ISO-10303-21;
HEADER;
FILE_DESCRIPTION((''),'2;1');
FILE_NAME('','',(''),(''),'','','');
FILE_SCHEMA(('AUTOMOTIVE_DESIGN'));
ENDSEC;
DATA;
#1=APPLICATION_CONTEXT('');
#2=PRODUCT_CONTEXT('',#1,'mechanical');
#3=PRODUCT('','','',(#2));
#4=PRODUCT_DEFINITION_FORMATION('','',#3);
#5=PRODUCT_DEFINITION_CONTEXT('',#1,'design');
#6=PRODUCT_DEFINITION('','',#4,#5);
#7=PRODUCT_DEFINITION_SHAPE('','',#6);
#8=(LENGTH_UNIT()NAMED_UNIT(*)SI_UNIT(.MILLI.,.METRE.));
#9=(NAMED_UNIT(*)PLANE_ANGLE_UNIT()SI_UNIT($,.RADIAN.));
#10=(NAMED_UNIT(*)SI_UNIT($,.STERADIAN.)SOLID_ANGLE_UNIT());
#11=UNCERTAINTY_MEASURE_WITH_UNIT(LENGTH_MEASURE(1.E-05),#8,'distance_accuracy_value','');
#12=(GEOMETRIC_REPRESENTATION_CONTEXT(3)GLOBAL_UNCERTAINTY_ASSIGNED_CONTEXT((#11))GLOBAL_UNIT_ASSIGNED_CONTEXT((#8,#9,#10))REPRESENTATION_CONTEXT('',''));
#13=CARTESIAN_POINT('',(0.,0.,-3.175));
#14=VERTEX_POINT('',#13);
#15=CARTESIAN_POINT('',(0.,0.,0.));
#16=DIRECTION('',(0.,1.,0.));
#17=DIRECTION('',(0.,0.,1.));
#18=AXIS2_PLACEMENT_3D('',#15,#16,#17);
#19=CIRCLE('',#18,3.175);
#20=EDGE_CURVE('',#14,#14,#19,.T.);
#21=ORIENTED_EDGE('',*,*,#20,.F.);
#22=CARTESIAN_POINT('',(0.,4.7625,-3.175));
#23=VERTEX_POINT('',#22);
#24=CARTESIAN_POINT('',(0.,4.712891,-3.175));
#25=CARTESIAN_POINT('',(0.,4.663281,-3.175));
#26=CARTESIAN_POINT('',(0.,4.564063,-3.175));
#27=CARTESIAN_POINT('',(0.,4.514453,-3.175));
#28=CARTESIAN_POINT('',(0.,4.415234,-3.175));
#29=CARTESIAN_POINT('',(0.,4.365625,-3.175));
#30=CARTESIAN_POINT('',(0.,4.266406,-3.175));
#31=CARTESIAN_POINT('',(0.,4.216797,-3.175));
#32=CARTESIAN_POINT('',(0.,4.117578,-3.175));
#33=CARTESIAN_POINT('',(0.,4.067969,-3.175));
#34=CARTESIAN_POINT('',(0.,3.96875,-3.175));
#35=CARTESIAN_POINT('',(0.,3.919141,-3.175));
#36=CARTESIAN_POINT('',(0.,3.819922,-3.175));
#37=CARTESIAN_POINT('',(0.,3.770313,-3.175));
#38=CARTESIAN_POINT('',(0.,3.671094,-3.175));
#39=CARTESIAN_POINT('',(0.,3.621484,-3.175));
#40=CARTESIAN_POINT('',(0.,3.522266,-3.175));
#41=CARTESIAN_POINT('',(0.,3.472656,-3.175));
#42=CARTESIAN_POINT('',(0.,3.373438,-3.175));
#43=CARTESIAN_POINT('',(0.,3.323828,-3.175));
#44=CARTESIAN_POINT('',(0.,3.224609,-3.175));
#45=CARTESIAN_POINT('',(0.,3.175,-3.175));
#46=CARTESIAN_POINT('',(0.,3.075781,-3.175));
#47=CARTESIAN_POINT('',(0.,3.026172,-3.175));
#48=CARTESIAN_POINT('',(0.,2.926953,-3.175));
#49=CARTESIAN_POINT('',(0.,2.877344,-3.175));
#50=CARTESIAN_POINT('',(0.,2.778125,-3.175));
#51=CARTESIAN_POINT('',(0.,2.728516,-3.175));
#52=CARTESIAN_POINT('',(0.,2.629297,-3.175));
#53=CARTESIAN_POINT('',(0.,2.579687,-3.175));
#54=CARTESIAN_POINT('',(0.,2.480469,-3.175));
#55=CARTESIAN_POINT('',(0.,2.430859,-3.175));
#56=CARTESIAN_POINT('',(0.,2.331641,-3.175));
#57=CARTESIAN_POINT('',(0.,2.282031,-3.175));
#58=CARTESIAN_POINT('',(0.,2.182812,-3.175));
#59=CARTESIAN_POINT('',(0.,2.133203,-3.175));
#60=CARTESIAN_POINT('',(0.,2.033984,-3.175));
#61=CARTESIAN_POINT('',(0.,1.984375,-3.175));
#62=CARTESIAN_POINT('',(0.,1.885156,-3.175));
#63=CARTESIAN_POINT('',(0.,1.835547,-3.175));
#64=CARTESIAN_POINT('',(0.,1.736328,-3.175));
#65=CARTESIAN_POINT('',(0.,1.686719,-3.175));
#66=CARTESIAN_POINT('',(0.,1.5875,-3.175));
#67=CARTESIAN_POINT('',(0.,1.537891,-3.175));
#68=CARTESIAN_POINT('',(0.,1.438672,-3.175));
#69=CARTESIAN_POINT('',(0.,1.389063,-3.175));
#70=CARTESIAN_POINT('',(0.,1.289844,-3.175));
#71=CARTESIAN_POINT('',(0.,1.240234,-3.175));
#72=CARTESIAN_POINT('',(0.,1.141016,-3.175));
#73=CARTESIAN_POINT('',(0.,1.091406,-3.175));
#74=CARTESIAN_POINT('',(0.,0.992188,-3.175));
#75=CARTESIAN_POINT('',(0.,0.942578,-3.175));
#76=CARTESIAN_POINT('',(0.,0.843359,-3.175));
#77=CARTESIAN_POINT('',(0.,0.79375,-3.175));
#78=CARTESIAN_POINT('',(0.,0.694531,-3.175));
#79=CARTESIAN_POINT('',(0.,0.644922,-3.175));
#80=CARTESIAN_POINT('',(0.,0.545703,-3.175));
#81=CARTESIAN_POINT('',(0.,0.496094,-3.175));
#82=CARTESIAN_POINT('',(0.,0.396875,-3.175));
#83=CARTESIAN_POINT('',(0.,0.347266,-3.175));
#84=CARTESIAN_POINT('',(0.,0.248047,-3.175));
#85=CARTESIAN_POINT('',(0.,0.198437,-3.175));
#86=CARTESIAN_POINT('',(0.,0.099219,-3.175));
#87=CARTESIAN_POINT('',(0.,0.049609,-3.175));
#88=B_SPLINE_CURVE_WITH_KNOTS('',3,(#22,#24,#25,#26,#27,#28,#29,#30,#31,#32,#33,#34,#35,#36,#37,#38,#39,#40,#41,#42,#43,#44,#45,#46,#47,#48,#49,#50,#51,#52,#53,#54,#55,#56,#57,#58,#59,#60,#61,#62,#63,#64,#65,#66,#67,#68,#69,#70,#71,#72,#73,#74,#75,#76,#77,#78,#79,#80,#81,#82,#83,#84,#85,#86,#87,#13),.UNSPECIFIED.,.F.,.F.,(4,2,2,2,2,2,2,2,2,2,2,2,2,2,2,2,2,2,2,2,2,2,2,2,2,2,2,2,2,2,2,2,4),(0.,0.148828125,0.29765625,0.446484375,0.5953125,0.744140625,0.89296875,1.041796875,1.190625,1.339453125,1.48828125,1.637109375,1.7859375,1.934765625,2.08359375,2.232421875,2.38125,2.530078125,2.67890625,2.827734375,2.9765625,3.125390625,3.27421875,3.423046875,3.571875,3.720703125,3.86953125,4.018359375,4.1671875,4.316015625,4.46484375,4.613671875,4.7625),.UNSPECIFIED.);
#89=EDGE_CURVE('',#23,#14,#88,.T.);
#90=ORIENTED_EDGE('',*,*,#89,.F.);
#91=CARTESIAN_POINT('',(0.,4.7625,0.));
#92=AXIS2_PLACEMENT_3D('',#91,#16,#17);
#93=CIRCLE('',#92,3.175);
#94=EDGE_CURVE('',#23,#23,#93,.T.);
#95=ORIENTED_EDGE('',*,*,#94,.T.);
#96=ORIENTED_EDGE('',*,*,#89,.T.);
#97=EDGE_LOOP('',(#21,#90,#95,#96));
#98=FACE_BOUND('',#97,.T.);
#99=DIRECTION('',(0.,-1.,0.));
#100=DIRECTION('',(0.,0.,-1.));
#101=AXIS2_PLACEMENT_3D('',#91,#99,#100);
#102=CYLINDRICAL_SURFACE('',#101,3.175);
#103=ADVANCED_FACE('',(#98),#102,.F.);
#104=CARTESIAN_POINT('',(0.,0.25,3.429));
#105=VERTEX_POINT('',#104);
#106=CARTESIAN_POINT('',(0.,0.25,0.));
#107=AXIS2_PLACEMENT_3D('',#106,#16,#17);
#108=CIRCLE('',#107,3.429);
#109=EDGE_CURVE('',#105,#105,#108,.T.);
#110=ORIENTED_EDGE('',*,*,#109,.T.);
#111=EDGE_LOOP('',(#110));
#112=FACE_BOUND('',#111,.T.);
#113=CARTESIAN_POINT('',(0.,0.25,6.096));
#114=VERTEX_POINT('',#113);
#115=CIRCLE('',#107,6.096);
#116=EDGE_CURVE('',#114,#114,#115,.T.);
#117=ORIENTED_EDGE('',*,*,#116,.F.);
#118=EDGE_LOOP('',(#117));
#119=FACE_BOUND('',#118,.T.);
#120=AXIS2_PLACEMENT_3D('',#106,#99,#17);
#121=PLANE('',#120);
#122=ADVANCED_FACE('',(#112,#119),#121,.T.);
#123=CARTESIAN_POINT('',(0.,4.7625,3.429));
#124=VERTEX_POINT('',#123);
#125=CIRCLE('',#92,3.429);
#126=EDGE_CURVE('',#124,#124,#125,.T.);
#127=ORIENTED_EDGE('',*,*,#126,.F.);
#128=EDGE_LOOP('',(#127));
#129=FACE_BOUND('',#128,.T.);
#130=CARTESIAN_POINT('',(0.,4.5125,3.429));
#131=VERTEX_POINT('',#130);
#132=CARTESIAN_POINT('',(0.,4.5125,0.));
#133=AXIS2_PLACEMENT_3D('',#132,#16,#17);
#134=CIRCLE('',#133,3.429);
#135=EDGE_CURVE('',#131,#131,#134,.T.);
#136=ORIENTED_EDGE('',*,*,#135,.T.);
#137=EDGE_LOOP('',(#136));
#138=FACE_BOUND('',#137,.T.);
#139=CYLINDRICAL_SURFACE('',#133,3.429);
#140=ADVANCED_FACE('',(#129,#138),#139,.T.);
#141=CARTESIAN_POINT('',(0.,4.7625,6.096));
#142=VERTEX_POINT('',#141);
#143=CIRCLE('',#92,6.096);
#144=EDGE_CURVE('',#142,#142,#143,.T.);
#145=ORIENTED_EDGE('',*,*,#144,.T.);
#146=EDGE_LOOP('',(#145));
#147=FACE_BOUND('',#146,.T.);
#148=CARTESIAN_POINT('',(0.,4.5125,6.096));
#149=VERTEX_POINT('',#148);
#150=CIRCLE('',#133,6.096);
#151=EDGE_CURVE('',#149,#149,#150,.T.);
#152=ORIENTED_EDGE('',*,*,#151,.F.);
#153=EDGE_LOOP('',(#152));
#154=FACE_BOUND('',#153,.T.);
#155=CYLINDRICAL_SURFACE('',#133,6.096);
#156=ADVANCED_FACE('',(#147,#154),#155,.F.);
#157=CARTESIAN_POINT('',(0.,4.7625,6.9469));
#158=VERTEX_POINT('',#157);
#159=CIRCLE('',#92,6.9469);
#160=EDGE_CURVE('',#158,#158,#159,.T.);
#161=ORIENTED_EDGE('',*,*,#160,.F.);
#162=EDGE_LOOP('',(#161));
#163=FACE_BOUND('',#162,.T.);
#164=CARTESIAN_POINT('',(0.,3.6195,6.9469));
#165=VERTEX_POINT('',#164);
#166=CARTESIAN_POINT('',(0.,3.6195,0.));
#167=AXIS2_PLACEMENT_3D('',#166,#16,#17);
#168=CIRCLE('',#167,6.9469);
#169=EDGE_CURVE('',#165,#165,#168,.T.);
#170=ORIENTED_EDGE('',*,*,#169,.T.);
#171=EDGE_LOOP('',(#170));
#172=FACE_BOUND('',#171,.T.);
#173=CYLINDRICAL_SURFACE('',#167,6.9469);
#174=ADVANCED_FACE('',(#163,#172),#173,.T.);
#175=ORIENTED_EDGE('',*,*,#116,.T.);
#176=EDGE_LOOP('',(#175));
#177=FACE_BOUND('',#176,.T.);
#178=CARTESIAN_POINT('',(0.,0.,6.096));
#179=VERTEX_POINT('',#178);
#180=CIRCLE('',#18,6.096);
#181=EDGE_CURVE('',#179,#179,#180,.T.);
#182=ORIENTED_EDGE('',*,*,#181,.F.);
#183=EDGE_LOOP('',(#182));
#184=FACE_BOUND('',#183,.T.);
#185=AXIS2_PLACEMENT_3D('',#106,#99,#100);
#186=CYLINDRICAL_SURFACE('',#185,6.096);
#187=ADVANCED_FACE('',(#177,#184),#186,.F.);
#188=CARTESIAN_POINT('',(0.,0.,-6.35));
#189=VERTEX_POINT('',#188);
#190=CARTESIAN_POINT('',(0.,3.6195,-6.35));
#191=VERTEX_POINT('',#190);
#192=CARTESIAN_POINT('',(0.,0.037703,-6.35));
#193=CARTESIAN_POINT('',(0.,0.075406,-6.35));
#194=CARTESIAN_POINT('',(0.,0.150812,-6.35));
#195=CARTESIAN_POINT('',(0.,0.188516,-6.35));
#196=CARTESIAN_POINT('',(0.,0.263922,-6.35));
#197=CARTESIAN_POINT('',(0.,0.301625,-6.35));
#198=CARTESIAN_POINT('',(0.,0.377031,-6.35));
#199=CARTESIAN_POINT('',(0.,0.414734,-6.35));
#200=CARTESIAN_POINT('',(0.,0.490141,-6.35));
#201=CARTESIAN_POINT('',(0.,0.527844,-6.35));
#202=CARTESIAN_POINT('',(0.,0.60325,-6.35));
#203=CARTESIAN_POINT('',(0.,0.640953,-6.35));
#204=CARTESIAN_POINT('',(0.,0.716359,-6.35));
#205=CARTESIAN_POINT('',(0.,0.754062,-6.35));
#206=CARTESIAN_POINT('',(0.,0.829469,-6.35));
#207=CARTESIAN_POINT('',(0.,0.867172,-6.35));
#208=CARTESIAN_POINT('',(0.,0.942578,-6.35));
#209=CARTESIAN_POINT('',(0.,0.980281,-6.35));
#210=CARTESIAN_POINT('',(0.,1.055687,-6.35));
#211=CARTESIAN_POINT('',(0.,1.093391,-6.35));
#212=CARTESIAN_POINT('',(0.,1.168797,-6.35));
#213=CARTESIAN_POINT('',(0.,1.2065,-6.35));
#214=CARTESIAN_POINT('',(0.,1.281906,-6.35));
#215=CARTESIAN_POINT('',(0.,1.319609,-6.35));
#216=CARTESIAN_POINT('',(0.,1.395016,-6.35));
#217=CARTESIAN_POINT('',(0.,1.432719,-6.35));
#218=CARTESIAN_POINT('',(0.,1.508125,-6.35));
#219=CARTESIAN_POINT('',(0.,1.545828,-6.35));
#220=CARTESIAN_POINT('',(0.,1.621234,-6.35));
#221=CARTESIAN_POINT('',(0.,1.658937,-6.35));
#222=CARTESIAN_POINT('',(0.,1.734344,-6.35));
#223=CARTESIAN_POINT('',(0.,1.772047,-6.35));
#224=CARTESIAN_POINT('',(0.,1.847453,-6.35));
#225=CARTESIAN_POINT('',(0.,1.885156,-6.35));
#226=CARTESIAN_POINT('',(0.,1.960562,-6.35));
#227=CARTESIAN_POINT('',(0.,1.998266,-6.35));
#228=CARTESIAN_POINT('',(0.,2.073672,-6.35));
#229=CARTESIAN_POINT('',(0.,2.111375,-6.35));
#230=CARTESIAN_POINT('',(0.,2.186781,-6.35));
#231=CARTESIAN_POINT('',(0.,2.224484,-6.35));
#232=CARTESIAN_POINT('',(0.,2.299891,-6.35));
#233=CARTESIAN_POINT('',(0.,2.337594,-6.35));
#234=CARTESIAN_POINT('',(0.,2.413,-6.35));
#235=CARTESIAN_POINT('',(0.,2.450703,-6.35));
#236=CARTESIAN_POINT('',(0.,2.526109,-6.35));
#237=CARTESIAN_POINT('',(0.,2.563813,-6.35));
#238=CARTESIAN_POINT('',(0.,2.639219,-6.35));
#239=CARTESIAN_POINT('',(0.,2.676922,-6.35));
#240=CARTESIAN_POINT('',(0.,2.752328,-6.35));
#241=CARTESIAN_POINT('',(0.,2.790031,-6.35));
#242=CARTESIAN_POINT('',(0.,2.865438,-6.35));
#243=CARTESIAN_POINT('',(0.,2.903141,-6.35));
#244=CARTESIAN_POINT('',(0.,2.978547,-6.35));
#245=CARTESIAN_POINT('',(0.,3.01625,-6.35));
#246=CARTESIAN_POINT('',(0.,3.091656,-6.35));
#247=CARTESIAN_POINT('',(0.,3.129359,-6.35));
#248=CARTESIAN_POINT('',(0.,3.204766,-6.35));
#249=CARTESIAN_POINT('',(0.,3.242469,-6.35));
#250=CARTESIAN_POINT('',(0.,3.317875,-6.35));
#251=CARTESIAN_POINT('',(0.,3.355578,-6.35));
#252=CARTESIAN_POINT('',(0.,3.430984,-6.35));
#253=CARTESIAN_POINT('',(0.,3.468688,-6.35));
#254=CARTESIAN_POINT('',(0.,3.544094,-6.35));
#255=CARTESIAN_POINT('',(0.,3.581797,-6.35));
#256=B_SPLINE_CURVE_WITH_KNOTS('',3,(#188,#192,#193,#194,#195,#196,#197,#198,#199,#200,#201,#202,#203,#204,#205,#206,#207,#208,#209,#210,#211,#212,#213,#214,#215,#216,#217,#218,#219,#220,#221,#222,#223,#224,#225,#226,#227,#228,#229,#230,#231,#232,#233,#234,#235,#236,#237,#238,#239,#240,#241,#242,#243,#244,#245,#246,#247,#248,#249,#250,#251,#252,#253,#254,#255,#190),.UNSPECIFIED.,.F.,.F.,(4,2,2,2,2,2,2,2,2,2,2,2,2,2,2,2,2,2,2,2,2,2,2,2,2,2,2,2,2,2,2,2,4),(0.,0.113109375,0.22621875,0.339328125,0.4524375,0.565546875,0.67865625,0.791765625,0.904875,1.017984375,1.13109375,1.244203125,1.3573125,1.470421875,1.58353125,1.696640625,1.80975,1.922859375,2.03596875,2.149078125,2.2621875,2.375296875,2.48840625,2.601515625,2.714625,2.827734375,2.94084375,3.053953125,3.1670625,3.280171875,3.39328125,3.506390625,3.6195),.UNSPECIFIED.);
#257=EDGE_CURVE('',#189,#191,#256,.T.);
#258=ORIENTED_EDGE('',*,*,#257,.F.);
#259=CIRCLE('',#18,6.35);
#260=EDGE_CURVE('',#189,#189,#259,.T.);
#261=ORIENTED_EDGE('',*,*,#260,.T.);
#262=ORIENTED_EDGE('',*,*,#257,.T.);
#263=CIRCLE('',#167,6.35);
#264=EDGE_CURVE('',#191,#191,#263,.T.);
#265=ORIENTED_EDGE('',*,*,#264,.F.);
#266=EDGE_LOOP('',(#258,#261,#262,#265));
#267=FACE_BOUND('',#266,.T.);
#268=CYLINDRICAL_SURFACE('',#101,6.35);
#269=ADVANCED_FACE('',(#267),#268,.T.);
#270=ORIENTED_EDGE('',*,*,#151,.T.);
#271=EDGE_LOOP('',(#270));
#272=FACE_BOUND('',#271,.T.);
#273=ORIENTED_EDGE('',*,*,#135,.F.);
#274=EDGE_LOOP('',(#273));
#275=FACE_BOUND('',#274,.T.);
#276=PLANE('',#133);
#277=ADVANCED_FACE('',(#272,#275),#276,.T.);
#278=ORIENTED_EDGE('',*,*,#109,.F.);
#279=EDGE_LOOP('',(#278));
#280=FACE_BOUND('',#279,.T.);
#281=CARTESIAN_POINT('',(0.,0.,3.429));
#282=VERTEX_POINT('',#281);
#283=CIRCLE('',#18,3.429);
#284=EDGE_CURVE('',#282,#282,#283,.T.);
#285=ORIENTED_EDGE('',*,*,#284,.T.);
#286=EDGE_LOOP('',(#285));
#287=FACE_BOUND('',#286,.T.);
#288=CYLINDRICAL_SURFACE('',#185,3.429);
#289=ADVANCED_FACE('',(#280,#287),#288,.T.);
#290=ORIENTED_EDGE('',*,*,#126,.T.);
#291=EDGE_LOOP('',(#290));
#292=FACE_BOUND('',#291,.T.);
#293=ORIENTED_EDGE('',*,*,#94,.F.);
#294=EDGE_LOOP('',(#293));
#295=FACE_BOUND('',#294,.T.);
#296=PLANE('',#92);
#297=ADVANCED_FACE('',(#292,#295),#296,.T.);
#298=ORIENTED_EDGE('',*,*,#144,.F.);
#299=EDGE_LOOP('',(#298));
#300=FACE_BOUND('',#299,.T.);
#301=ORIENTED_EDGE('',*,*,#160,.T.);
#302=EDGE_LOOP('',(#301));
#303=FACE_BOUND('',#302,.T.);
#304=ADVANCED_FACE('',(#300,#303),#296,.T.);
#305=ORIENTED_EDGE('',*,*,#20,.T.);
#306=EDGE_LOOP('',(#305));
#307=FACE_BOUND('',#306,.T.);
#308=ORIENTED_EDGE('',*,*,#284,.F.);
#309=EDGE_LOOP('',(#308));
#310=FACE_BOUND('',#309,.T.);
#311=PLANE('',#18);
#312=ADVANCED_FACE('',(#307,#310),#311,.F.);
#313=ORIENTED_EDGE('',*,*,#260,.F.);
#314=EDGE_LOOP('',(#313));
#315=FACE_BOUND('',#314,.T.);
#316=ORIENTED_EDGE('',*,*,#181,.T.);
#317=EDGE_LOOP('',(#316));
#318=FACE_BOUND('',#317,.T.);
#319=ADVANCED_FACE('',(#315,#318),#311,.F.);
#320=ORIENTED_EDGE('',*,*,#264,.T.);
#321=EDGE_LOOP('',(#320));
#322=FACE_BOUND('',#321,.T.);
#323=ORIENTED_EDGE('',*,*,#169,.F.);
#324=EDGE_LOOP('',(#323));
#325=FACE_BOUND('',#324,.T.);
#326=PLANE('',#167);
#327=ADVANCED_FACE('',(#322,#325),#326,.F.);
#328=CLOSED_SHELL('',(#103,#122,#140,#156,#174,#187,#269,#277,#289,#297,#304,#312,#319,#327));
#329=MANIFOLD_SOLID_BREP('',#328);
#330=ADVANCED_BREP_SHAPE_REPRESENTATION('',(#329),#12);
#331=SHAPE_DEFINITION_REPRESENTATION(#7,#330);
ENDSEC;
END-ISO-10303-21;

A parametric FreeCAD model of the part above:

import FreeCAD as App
import Part
import Sketcher

V = App.Vector
Q = App.Units.Quantity

doc = App.newDocument("Part")
body = doc.addObject("PartDesign::Body", "Body")

# Sketch on XZ plane
sketch1 = doc.addObject("Sketcher::SketchObject", "Sketch")
body.addObject(sketch1)
sketch1.AttachmentSupport = (doc.XZ_Plane, [""])
sketch1.MapMode = "FlatFace"
sketch1.addGeometry([
    Part.Circle(V(0, 0, 0), V(0, 0, 1), 6.35),
    Part.Circle(V(0, 0, 0), V(0, 0, 1), 3.175),
], False)
sketch1.addConstraint([
    Sketcher.Constraint("Coincident", 0, 3, -1, 1),
    Sketcher.Constraint("Coincident", 1, 3, -1, 1),
    Sketcher.Constraint("Diameter", 0, Q("0.5 in")),
    Sketcher.Constraint("Diameter", 1, Q("0.25 in")),
])
pad1 = doc.addObject("PartDesign::Pad", "Pad")
body.addObject(pad1)
pad1.Profile = sketch1
pad1.Length = Q("0.1875 in")
pad1.Reversed = True

# Sketch on XZ plane
sketch2 = doc.addObject("Sketcher::SketchObject", "Sketch001")
body.addObject(sketch2)
sketch2.AttachmentSupport = (doc.XZ_Plane, [""])
sketch2.MapMode = "FlatFace"
sketch2.AttachmentOffset = App.Placement(V(0, 0, -0.1875 * 25.4), App.Rotation())
sketch2.addGeometry([
    Part.Circle(V(0, 0, 0), V(0, 0, 1), 6.096),
    Part.Circle(V(0, 0, 0), V(0, 0, 1), 3.429),
], False)
sketch2.addConstraint([
    Sketcher.Constraint("Coincident", 0, 3, -1, 1),
    Sketcher.Constraint("Coincident", 1, 3, -1, 1),
    Sketcher.Constraint("Diameter", 0, Q("0.48 in")),
    Sketcher.Constraint("Diameter", 1, Q("0.27 in")),
])
pocket1 = doc.addObject("PartDesign::Pocket", "Pocket")
body.addObject(pocket1)
pocket1.Profile = sketch2
pocket1.Length = 0.25
pocket1.Reversed = True
doc.recompute()

datumplane = doc.addObject("PartDesign::Plane", "DatumPlane")
body.addObject(datumplane)
datumplane.AttachmentSupport = (doc.XZ_Plane, [""])
datumplane.MapMode = "FlatFace"
datumplane.AttachmentOffset = App.Placement(V(0, 0, -0.09375 * 25.4), App.Rotation())
mirrored = doc.addObject("PartDesign::Mirrored", "Mirrored")
body.addObject(mirrored)
mirrored.Originals = [pocket1]
mirrored.MirrorPlane = (datumplane, [""])
body.Tip = mirrored

# Sketch on XZ plane
sketch3 = doc.addObject("Sketcher::SketchObject", "Sketch002")
body.addObject(sketch3)
sketch3.AttachmentSupport = (doc.XZ_Plane, [""])
sketch3.MapMode = "FlatFace"
sketch3.AttachmentOffset = App.Placement(V(0, 0, -0.1425 * 25.4), App.Rotation())
sketch3.addGeometry([
    Part.Circle(V(0, 0, 0), V(0, 0, 1), 6.9469),
    Part.Circle(V(0, 0, 0), V(0, 0, 1), 6.35),
], False)
sketch3.addConstraint([
    Sketcher.Constraint("Coincident", 0, 3, -1, 1),
    Sketcher.Constraint("Coincident", 1, 3, -1, 1),
    Sketcher.Constraint("Diameter", 1, Q("0.5 in")),
    Sketcher.Constraint("Diameter", 0, Q("0.547 in")),
])
pad2 = doc.addObject("PartDesign::Pad", "Pad001")
body.addObject(pad2)
pad2.Profile = sketch3
pad2.Length = Q("0.045 in")
pad2.Reversed = True

doc.recompute()
